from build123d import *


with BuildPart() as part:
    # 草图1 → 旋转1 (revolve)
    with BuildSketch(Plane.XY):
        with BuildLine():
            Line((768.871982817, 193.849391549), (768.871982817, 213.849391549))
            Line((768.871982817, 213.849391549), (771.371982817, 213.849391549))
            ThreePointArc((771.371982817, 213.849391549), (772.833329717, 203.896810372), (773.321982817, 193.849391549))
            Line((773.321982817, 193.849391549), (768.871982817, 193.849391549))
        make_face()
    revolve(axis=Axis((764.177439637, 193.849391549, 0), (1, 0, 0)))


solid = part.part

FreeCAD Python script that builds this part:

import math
import FreeCAD as App
import Part
import Sketcher
Q = App.Units.Quantity

doc = App.newDocument("Part")
params = doc.addObject("Spreadsheet::Sheet", "Params")
for row, (alias, value) in enumerate([
    ("sketch1_height", "20 mm"),
    ("sketch1_width", "2.5 mm"),
    ("sketch1_width2", "4.45 mm"),
    ("revolution_angle", "360 deg"),
], start=1):
    params.set(f"A{row}", alias)
    params.set(f"B{row}", "=" + value)
    params.setAlias(f"B{row}", alias)

body = doc.addObject("PartDesign::Body", "Body")

sketch1 = body.newObject("Sketcher::SketchObject", "Sketch")
sketch1.AttachmentSupport = (doc.getObject("XY_Plane"), [""])
sketch1.MapMode = "FlatFace"
sketch1.addGeometry(Part.LineSegment(App.Vector(768.9, 213.8, 0), App.Vector(768.9, 193.8, 0)), False)
sketch1.addGeometry(Part.LineSegment(App.Vector(768.9, 193.8, 0), App.Vector(773.3, 193.8, 0)), False)
sketch1.addGeometry(Part.ArcOfCircle(Part.Circle(App.Vector(669.8, 193.8, 0), App.Vector(0, 0, 1), 103.5), math.radians(0), math.radians(11.14)), False)
sketch1.addGeometry(Part.LineSegment(App.Vector(771.4, 213.8, 0), App.Vector(768.9, 213.8, 0)), False)
sketch1.addGeometry(Part.LineSegment(App.Vector(669.8, 193.8, 0), App.Vector(773.3, 193.8, 0)), True)
sketch1.addConstraint(Sketcher.Constraint("Coincident", 0, 2, 1, 1))
sketch1.addConstraint(Sketcher.Constraint("Coincident", 1, 2, 2, 1))
sketch1.addConstraint(Sketcher.Constraint("Coincident", 2, 2, 3, 1))
sketch1.addConstraint(Sketcher.Constraint("Coincident", 3, 2, 0, 1))
sketch1.addConstraint(Sketcher.Constraint("Vertical", 0))
sketch1.addConstraint(Sketcher.Constraint("Horizontal", 1))
sketch1.addConstraint(Sketcher.Constraint("Horizontal", 3))
sketch1.addConstraint(Sketcher.Constraint("Horizontal", 4))
sketch1.addConstraint(Sketcher.Constraint("Coincident", 4, 1, 2, 3))
sketch1.addConstraint(Sketcher.Constraint("Coincident", 4, 2, 1, 2))
sketch1.addConstraint(Sketcher.Constraint("DistanceY", 0, 2, 0, 1, Q("20 mm")))
sketch1.addConstraint(Sketcher.Constraint("DistanceX", 3, 2, 3, 1, Q("2.5 mm")))
sketch1.addConstraint(Sketcher.Constraint("DistanceX", 1, 1, 1, 2, Q("4.45 mm")))
sketch1.addConstraint(Sketcher.Constraint("DistanceX", -1, 1, 2, 3, Q("669.78288 mm")))
sketch1.addConstraint(Sketcher.Constraint("DistanceY", -1, 1, 2, 3, Q("193.849392 mm")))
sketch1.setExpression("Constraints[10]", "Params.sketch1_height")
sketch1.setExpression("Constraints[11]", "Params.sketch1_width")
sketch1.setExpression("Constraints[12]", "Params.sketch1_width2")
revolution = body.newObject("PartDesign::Revolution", "Revolution")
revolution.Profile = sketch1
revolution.ReferenceAxis = (sketch1, ["Axis0"])
revolution.setExpression("Angle", "Params.revolution_angle")

doc.recompute()
